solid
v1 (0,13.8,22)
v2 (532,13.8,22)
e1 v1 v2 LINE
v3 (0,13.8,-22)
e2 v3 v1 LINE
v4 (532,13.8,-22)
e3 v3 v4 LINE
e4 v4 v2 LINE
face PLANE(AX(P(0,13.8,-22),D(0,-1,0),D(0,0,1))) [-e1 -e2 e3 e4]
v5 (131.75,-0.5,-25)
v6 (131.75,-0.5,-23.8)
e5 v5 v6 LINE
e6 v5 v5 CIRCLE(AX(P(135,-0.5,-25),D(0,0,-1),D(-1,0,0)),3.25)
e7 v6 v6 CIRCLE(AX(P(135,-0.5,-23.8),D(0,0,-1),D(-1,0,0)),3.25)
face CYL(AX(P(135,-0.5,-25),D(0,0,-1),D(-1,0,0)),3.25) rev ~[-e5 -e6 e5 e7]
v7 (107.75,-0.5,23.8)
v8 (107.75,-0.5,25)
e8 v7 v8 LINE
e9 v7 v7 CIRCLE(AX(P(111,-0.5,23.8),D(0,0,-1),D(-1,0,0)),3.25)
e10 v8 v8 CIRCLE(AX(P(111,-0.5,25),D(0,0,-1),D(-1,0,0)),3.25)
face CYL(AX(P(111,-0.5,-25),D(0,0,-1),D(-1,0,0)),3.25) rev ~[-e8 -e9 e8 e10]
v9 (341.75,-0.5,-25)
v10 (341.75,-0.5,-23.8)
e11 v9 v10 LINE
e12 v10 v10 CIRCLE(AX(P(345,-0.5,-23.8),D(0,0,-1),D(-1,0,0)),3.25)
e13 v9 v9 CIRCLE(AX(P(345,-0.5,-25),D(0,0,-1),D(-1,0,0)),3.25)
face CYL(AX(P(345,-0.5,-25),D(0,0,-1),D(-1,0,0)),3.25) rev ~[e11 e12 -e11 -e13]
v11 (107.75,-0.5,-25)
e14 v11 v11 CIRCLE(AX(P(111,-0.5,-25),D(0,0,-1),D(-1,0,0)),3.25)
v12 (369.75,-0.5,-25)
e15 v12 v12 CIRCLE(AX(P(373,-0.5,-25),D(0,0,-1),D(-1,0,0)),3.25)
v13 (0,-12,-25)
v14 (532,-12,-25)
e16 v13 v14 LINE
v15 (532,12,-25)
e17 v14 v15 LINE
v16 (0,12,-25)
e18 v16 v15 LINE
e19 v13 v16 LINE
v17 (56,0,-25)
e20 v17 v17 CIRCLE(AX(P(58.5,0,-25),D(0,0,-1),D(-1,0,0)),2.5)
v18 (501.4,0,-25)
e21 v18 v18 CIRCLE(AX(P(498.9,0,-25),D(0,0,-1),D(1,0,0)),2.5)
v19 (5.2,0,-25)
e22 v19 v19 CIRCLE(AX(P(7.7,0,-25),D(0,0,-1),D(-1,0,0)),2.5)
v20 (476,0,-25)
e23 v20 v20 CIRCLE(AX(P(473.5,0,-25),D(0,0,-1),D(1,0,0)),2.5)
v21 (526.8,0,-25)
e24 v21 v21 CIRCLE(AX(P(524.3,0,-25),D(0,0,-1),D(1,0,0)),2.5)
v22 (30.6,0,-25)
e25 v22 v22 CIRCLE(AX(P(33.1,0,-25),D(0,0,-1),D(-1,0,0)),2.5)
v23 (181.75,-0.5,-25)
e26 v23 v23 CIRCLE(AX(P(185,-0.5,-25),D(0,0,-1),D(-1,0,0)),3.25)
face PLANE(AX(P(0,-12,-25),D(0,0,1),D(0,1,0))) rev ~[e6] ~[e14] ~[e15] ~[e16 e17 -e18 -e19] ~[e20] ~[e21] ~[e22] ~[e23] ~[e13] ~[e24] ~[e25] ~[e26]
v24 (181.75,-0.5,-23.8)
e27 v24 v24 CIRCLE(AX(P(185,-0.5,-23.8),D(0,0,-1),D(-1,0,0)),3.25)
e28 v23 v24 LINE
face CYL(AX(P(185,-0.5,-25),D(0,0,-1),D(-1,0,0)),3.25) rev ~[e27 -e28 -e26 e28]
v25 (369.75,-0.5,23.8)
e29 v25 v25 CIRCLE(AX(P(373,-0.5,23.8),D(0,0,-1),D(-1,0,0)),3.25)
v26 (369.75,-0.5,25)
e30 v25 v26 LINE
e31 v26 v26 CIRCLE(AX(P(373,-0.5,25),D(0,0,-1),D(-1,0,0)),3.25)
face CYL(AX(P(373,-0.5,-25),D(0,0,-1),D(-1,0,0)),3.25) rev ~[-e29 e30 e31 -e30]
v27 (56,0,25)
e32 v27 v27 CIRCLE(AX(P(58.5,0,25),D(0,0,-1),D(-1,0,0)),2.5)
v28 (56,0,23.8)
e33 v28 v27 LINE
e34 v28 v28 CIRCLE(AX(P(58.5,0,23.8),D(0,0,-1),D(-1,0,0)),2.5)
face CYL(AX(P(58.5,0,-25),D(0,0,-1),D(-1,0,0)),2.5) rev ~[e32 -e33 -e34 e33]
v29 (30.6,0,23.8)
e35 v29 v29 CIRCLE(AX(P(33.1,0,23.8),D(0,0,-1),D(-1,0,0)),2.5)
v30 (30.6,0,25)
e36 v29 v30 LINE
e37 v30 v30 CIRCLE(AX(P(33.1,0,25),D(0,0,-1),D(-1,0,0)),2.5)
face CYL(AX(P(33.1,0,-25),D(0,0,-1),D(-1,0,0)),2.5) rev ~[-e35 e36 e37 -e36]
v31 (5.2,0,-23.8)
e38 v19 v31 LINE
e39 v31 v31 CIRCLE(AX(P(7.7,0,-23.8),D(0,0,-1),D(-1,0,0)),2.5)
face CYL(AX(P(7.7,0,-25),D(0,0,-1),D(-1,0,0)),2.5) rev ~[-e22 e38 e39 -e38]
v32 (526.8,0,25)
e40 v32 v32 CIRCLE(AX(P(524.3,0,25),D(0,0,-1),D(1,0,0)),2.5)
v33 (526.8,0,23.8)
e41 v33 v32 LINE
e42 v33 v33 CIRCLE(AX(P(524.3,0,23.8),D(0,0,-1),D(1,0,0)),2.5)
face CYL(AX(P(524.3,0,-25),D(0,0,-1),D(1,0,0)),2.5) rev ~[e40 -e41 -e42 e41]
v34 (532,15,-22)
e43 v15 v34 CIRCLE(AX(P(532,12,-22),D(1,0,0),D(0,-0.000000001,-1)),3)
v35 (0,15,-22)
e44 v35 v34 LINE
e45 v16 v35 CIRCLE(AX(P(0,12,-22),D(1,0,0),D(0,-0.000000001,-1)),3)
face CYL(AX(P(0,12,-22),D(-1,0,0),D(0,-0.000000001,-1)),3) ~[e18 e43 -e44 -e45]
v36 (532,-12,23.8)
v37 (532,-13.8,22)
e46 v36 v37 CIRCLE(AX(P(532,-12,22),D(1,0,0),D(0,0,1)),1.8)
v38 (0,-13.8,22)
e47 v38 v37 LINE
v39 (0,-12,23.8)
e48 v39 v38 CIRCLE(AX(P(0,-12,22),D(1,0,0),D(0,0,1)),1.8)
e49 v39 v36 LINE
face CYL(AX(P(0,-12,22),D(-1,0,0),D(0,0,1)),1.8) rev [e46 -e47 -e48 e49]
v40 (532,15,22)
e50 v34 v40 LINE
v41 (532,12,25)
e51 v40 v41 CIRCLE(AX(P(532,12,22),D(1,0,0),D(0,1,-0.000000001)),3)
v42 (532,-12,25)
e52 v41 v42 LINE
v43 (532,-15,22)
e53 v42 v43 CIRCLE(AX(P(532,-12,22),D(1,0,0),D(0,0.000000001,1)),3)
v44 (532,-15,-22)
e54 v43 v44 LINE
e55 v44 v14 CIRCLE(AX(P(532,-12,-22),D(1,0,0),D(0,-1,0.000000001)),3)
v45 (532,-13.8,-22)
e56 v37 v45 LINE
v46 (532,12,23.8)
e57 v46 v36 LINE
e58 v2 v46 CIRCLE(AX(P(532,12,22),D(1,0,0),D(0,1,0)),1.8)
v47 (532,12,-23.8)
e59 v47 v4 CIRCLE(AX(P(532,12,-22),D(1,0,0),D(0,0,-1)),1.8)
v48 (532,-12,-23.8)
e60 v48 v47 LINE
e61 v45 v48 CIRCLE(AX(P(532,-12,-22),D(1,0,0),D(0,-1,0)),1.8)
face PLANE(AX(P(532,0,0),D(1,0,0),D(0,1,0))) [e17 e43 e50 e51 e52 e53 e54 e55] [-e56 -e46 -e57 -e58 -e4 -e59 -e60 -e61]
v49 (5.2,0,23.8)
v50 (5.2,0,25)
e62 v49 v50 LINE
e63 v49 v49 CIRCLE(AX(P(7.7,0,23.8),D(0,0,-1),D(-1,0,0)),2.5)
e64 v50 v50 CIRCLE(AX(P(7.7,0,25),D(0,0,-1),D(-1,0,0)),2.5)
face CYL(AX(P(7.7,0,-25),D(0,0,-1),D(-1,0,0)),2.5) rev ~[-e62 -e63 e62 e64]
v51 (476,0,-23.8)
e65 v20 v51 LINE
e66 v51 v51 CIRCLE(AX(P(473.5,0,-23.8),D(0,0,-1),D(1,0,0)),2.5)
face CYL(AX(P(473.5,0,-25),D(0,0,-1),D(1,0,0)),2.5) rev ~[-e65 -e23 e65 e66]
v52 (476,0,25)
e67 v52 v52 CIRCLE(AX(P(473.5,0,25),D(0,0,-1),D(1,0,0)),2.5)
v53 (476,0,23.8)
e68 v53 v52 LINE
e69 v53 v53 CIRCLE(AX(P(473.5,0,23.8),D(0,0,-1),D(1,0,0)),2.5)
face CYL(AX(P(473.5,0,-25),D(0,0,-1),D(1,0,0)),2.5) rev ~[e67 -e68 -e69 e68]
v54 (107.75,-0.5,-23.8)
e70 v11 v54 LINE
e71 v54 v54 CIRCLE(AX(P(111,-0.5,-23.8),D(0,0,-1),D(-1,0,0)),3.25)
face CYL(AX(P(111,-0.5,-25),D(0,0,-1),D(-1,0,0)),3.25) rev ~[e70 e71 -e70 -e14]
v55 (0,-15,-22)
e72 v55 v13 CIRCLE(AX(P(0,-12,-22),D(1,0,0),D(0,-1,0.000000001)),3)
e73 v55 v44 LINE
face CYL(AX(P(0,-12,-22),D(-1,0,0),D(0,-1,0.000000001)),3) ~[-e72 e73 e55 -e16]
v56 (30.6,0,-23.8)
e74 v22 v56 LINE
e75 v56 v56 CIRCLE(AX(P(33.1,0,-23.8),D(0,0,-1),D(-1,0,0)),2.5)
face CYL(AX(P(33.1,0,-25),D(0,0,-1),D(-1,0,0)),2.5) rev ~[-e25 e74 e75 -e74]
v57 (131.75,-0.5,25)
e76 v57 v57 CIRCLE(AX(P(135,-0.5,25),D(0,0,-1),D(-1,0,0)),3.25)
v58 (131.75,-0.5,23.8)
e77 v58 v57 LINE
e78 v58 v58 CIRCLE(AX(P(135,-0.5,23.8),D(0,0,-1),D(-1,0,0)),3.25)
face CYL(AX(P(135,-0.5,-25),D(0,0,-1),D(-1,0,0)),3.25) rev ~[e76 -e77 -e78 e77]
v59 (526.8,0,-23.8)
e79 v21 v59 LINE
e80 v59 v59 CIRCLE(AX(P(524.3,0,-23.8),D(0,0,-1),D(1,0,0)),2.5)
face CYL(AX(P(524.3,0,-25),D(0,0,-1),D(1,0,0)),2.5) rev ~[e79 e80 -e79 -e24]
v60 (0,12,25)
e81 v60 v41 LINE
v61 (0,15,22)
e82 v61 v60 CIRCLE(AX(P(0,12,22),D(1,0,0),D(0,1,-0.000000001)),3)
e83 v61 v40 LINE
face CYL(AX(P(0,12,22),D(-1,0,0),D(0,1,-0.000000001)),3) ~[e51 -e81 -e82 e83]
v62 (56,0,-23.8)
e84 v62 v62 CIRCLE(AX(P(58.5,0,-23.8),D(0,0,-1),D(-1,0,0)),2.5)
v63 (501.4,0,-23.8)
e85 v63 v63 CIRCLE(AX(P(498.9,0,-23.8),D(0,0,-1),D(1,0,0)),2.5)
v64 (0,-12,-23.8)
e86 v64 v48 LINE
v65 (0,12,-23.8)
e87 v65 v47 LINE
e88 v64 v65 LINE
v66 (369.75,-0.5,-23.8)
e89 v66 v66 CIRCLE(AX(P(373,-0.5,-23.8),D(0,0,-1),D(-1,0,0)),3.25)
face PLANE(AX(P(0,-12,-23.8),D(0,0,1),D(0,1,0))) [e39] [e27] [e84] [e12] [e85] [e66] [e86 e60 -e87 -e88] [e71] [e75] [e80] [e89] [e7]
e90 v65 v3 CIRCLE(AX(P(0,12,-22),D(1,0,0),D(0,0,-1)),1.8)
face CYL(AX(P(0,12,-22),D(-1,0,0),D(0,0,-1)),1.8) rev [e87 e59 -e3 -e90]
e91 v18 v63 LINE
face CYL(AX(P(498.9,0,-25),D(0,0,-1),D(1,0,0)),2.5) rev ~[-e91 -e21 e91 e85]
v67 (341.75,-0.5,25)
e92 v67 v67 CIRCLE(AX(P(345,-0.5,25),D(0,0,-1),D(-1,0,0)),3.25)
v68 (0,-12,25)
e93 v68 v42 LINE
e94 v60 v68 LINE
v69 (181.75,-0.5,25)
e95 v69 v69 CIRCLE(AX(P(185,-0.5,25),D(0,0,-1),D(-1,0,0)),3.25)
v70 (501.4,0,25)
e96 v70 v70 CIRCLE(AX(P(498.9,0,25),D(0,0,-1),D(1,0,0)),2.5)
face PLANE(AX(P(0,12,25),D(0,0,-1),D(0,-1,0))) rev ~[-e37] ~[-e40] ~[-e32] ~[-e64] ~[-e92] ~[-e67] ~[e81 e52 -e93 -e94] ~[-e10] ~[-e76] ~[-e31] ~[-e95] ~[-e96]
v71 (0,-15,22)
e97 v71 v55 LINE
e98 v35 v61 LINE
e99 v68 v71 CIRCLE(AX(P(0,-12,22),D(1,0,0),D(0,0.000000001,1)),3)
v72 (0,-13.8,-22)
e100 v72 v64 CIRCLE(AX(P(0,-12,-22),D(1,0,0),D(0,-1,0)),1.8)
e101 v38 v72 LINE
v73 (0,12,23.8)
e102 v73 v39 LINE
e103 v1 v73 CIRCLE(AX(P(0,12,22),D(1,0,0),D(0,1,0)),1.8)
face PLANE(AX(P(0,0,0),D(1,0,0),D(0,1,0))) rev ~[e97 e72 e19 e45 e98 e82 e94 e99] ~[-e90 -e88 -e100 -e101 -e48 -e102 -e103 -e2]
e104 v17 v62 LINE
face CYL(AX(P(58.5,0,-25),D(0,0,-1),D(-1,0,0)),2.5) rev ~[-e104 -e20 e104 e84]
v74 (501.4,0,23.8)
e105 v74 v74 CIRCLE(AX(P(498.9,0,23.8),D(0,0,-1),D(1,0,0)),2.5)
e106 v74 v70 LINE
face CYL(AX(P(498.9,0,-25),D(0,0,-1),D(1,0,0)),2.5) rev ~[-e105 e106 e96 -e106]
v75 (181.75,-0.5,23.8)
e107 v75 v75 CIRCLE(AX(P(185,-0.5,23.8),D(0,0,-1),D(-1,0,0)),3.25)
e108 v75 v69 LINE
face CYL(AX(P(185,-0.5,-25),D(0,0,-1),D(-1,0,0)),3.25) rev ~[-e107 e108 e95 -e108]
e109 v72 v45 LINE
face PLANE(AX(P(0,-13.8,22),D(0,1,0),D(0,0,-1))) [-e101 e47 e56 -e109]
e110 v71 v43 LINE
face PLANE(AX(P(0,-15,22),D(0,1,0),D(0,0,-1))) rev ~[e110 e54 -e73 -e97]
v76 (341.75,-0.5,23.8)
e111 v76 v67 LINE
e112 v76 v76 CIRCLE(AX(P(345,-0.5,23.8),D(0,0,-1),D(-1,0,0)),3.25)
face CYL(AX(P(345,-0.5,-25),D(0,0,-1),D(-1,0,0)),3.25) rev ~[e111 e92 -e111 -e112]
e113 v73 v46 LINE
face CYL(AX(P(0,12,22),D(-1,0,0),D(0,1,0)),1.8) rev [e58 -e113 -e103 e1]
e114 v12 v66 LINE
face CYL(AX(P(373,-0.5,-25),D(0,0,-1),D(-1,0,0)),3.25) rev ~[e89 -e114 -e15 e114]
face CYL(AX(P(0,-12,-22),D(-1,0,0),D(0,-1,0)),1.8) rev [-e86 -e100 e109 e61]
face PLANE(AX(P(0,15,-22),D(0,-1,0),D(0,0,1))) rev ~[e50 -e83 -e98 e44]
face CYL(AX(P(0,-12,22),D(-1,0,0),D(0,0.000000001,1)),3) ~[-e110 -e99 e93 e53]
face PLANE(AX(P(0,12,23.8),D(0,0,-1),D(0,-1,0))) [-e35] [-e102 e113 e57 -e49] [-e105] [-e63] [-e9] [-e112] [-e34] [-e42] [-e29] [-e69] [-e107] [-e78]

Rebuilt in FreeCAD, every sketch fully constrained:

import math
import FreeCAD as App
import Part
import Sketcher
from FreeCAD import Vector
Q = App.Units.Quantity

doc = App.newDocument("Part")
body = doc.addObject("PartDesign::Body", "Body")

# Sketch on YZ plane
sketch1 = body.newObject("Sketcher::SketchObject", "Sketch")
sketch1.AttachmentSupport = (doc.getObject("YZ_Plane"), [""])
sketch1.MapMode = "FlatFace"
sketch1.addGeometry([
    Part.LineSegment(Vector(-12, -25, 0), Vector(12, -25, 0)),  # 0
    Part.ArcOfCircle(Part.Circle(Vector(12, -22, 0), Vector(0, 0, 1), 3), math.radians(-90), math.radians(0)),  # 1
    Part.LineSegment(Vector(15, -22, 0), Vector(15, 22, 0)),  # 2
    Part.ArcOfCircle(Part.Circle(Vector(12, 22, 0), Vector(0, 0, 1), 3), math.radians(0), math.radians(90)),  # 3
    Part.LineSegment(Vector(12, 25, 0), Vector(-12, 25, 0)),  # 4
    Part.ArcOfCircle(Part.Circle(Vector(-12, 22, 0), Vector(0, 0, 1), 3), math.radians(90), math.radians(180)),  # 5
    Part.LineSegment(Vector(-15, 22, 0), Vector(-15, -22, 0)),  # 6
    Part.ArcOfCircle(Part.Circle(Vector(-12, -22, 0), Vector(0, 0, 1), 3), math.radians(180), math.radians(270)),  # 7
    Part.LineSegment(Vector(12, -23.8, 0), Vector(-12, -23.8, 0)),  # 8
    Part.ArcOfCircle(Part.Circle(Vector(-12, -22, 0), Vector(0, 0, 1), 1.8), math.radians(180), math.radians(270)),  # 9
    Part.LineSegment(Vector(-13.8, -22, 0), Vector(-13.8, 22, 0)),  # 10
    Part.ArcOfCircle(Part.Circle(Vector(-12, 22, 0), Vector(0, 0, 1), 1.8), math.radians(90), math.radians(180)),  # 11
    Part.LineSegment(Vector(-12, 23.8, 0), Vector(12, 23.8, 0)),  # 12
    Part.ArcOfCircle(Part.Circle(Vector(12, 22, 0), Vector(0, 0, 1), 1.8), math.radians(0), math.radians(90)),  # 13
    Part.LineSegment(Vector(13.8, 22, 0), Vector(13.8, -22, 0)),  # 14
    Part.ArcOfCircle(Part.Circle(Vector(12, -22, 0), Vector(0, 0, 1), 1.8), math.radians(-90), math.radians(0)),  # 15
], False)
sketch1.addConstraint([
    Sketcher.Constraint("Tangent", 0, 2, 1, 1),
    Sketcher.Constraint("Tangent", 1, 2, 2, 1),
    Sketcher.Constraint("Tangent", 2, 2, 3, 1),
    Sketcher.Constraint("Tangent", 3, 2, 4, 1),
    Sketcher.Constraint("Tangent", 4, 2, 5, 1),
    Sketcher.Constraint("Tangent", 5, 2, 6, 1),
    Sketcher.Constraint("Tangent", 6, 2, 7, 1),
    Sketcher.Constraint("Tangent", 7, 2, 0, 1),
    Sketcher.Constraint("Tangent", 8, 2, 9, 2),
    Sketcher.Constraint("Tangent", 9, 1, 10, 1),
    Sketcher.Constraint("Tangent", 10, 2, 11, 2),
    Sketcher.Constraint("Tangent", 11, 1, 12, 1),
    Sketcher.Constraint("Tangent", 12, 2, 13, 2),
    Sketcher.Constraint("Tangent", 13, 1, 14, 1),
    Sketcher.Constraint("Tangent", 14, 2, 15, 2),
    Sketcher.Constraint("Tangent", 15, 1, 8, 1),
    Sketcher.Constraint("Horizontal", 0),
    Sketcher.Constraint("Vertical", 2),
    Sketcher.Constraint("Horizontal", 4),
    Sketcher.Constraint("Vertical", 6),
    Sketcher.Constraint("Horizontal", 8),
    Sketcher.Constraint("Vertical", 10),
    Sketcher.Constraint("Horizontal", 12),
    Sketcher.Constraint("Vertical", 14),
    Sketcher.Constraint("Coincident", 9, 3, 7, 3),
    Sketcher.Constraint("Coincident", 11, 3, 5, 3),
    Sketcher.Constraint("Coincident", 13, 3, 3, 3),
    Sketcher.Constraint("Equal", 1, 3),
    Sketcher.Constraint("Equal", 3, 5),
    Sketcher.Constraint("Equal", 5, 7),
    Sketcher.Constraint("Equal", 13, 15),
    Sketcher.Constraint("Symmetric", 1, 3, 5, 3, -1, 1),
    Sketcher.Constraint("Radius", 1, Q("3 mm")),
    Sketcher.Constraint("Radius", 9, Q("1.8 mm")),
    Sketcher.Constraint("DistanceX", 0, 1, 0, 2, Q("24 mm")),
    Sketcher.Constraint("DistanceY", 2, 1, 2, 2, Q("44 mm")),
])
pad1 = body.newObject("PartDesign::Pad", "Pad")
pad1.Profile = sketch1
pad1.Length = 532

# Sketch on XY plane
sketch2 = body.newObject("Sketcher::SketchObject", "Sketch001")
sketch2.AttachmentSupport = (doc.getObject("XY_Plane"), [""])
sketch2.MapMode = "FlatFace"
sketch2.AttachmentOffset = App.Placement(Vector(0, 0, -25), App.Rotation())
sketch2.addGeometry([
    Part.Circle(Vector(58.5, 0, 0), Vector(0, 0, 1), 2.5),  # 0
    Part.Circle(Vector(33.1, 0, 0), Vector(0, 0, 1), 2.5),  # 1
    Part.Circle(Vector(7.7, 0, 0), Vector(0, 0, 1), 2.5),  # 2
    Part.Circle(Vector(524.3, 0, 0), Vector(0, 0, 1), 2.5),  # 3
    Part.Circle(Vector(498.9, 0, 0), Vector(0, 0, 1), 2.5),  # 4
    Part.Circle(Vector(473.5, 0, 0), Vector(0, 0, 1), 2.5),  # 5
], False)
sketch2.addConstraint([
    Sketcher.Constraint("Equal", 0, 1),
    Sketcher.Constraint("Equal", 1, 2),
    Sketcher.Constraint("Equal", 2, 3),
    Sketcher.Constraint("Equal", 3, 4),
    Sketcher.Constraint("Equal", 4, 5),
    Sketcher.Constraint("PointOnObject", 0, 3, -1),
    Sketcher.Constraint("PointOnObject", 1, 3, -1),
    Sketcher.Constraint("PointOnObject", 2, 3, -1),
    Sketcher.Constraint("PointOnObject", 3, 3, -1),
    Sketcher.Constraint("PointOnObject", 4, 3, -1),
    Sketcher.Constraint("PointOnObject", 5, 3, -1),
    Sketcher.Constraint("Diameter", 0, Q("5 mm")),
    Sketcher.Constraint("DistanceX", 0, 3, 5, 3, Q("415 mm")),
    Sketcher.Constraint("DistanceX", -1, 1, 0, 3, Q("58.5 mm")),
    Sketcher.Constraint("DistanceX", -1, 1, 1, 3, Q("33.1 mm")),
    Sketcher.Constraint("DistanceX", -1, 1, 2, 3, Q("7.7 mm")),
    Sketcher.Constraint("DistanceX", -1, 1, 3, 3, Q("524.3 mm")),
    Sketcher.Constraint("DistanceX", -1, 1, 4, 3, Q("498.9 mm")),
])
pocket1 = body.newObject("PartDesign::Pocket", "Pocket")
pocket1.Profile = sketch2
pocket1.Type = "ThroughAll"
pocket1.Reversed = True

# Sketch on XY plane
sketch3 = body.newObject("Sketcher::SketchObject", "Sketch002")
sketch3.AttachmentSupport = (doc.getObject("XY_Plane"), [""])
sketch3.MapMode = "FlatFace"
sketch3.AttachmentOffset = App.Placement(Vector(0, 0, -25), App.Rotation())
sketch3.addGeometry([
    Part.Circle(Vector(185, -0.5, 0), Vector(0, 0, 1), 3.2),
    Part.Circle(Vector(111, -0.5, 0), Vector(0, 0, 1), 3.2),
    Part.Circle(Vector(373, -0.5, 0), Vector(0, 0, 1), 3.2),
], False)
sketch3.addConstraint([
    Sketcher.Constraint("Equal", 0, 1),
    Sketcher.Constraint("Equal", 1, 2),
    Sketcher.Constraint("Horizontal", 0, 3, 1, 3),
    Sketcher.Constraint("Horizontal", 1, 3, 2, 3),
    Sketcher.Constraint("Diameter", 0, Q("6.5 mm")),
    Sketcher.Constraint("DistanceX", -1, 1, 0, 3, Q("185 mm")),
    Sketcher.Constraint("DistanceX", -1, 1, 1, 3, Q("111 mm")),
    Sketcher.Constraint("DistanceX", -1, 1, 2, 3, Q("373 mm")),
    Sketcher.Constraint("DistanceY", 0, 3, -1, 1, Q("0.5 mm")),
])
pocket2 = body.newObject("PartDesign::Pocket", "Pocket001")
pocket2.Profile = sketch3
pocket2.Type = "ThroughAll"
pocket2.Reversed = True

# Sketch on XY plane
sketch4 = body.newObject("Sketcher::SketchObject", "Sketch003")
sketch4.AttachmentSupport = (doc.getObject("XY_Plane"), [""])
sketch4.MapMode = "FlatFace"
sketch4.AttachmentOffset = App.Placement(Vector(0, 0, -25), App.Rotation())
sketch4.addGeometry([
    Part.Circle(Vector(345, -0.5, 0), Vector(0, 0, 1), 3.2),
    Part.Circle(Vector(135, -0.5, 0), Vector(0, 0, 1), 3.2),
], False)
sketch4.addConstraint([
    Sketcher.Constraint("Equal", 0, 1),
    Sketcher.Constraint("Horizontal", 0, 3, 1, 3),
    Sketcher.Constraint("Diameter", 0, Q("6.5 mm")),
    Sketcher.Constraint("DistanceX", -1, 1, 0, 3, Q("345 mm")),
    Sketcher.Constraint("DistanceX", -1, 1, 1, 3, Q("135 mm")),
    Sketcher.Constraint("DistanceY", 0, 3, -1, 1, Q("0.5 mm")),
])
pocket3 = body.newObject("PartDesign::Pocket", "Pocket002")
pocket3.Profile = sketch4
pocket3.Type = "ThroughAll"
pocket3.Reversed = True

doc.recompute()
